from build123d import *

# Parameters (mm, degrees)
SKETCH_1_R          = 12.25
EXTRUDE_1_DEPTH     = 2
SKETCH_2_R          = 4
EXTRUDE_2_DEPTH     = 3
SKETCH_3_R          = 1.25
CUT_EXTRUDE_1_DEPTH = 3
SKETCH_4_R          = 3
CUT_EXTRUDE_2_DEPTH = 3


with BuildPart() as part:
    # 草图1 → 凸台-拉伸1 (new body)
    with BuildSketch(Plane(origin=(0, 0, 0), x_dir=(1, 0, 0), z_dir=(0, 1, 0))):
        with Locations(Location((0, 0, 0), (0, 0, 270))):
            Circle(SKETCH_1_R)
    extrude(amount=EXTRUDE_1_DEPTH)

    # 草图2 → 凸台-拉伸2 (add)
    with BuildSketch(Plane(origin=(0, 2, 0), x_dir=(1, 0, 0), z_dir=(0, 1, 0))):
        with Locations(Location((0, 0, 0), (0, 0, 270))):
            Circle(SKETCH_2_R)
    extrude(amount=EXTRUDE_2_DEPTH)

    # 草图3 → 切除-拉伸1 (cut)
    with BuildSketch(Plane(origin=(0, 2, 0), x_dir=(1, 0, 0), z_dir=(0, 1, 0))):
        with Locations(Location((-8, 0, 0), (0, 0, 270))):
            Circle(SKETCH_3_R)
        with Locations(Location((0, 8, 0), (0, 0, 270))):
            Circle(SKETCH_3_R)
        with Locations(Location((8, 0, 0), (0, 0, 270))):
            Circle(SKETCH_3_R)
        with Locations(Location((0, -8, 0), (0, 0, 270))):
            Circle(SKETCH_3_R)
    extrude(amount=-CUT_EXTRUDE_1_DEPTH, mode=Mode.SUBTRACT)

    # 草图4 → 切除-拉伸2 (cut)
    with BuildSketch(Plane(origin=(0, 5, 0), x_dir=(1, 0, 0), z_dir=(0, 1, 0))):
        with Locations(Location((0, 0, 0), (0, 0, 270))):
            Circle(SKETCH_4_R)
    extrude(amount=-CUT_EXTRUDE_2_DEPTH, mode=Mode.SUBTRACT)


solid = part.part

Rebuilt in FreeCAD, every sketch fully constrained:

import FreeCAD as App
import Part
import Sketcher
from FreeCAD import Vector
Q = App.Units.Quantity

doc = App.newDocument("Part")
body = doc.addObject("PartDesign::Body", "Body")

# Sketch on XZ plane
sketch1 = body.newObject("Sketcher::SketchObject", "Sketch")
sketch1.AttachmentSupport = (doc.getObject("XZ_Plane"), [""])
sketch1.MapMode = "FlatFace"
sketch1.addGeometry(Part.Circle(Vector(0, 0, 0), Vector(0, 0, 1), 12), False)
sketch1.addConstraint([
    Sketcher.Constraint("Coincident", 0, 3, -1, 1),
    Sketcher.Constraint("Diameter", 0, Q("24.5 mm")),
])
pad1 = body.newObject("PartDesign::Pad", "Pad")
pad1.Profile = sketch1
pad1.Length = 2
pad1.Reversed = True

# Sketch on XZ plane
sketch2 = body.newObject("Sketcher::SketchObject", "Sketch001")
sketch2.AttachmentSupport = (doc.getObject("XZ_Plane"), [""])
sketch2.MapMode = "FlatFace"
sketch2.AttachmentOffset = App.Placement(Vector(0, 0, -2), App.Rotation())
sketch2.addGeometry(Part.Circle(Vector(0, 0, 0), Vector(0, 0, 1), 4), False)
sketch2.addConstraint([
    Sketcher.Constraint("Coincident", 0, 3, -1, 1),
    Sketcher.Constraint("Diameter", 0, Q("8 mm")),
])
pad2 = body.newObject("PartDesign::Pad", "Pad001")
pad2.Profile = sketch2
pad2.Length = 3
pad2.Reversed = True

# Sketch on XZ plane
sketch3 = body.newObject("Sketcher::SketchObject", "Sketch002")
sketch3.AttachmentSupport = (doc.getObject("XZ_Plane"), [""])
sketch3.MapMode = "FlatFace"
sketch3.AttachmentOffset = App.Placement(Vector(0, 0, -2), App.Rotation())
sketch3.addGeometry([
    Part.Circle(Vector(-8, 0, 0), Vector(0, 0, 1), 1.2),
    Part.Circle(Vector(0, -8, 0), Vector(0, 0, 1), 1.2),
    Part.Circle(Vector(8, 0, 0), Vector(0, 0, 1), 1.2),
    Part.Circle(Vector(0, 8, 0), Vector(0, 0, 1), 1.2),
], False)
sketch3.addConstraint([
    Sketcher.Constraint("Equal", 0, 1),
    Sketcher.Constraint("Equal", 1, 2),
    Sketcher.Constraint("Equal", 2, 3),
    Sketcher.Constraint("Symmetric", 0, 3, 2, 3, -1, 1),
    Sketcher.Constraint("Symmetric", 1, 3, 3, 3, -1, 1),
    Sketcher.Constraint("PointOnObject", 0, 3, -1),
    Sketcher.Constraint("PointOnObject", 1, 3, -2),
    Sketcher.Constraint("Diameter", 0, Q("2.5 mm")),
    Sketcher.Constraint("DistanceX", 0, 3, -1, 1, Q("8 mm")),
    Sketcher.Constraint("DistanceY", 1, 3, -1, 1, Q("8 mm")),
])
pocket1 = body.newObject("PartDesign::Pocket", "Pocket")
pocket1.Profile = sketch3
pocket1.Length = 3
pocket1.Reversed = True

# Sketch on XZ plane
sketch4 = body.newObject("Sketcher::SketchObject", "Sketch003")
sketch4.AttachmentSupport = (doc.getObject("XZ_Plane"), [""])
sketch4.MapMode = "FlatFace"
sketch4.AttachmentOffset = App.Placement(Vector(0, 0, -5), App.Rotation())
sketch4.addGeometry(Part.Circle(Vector(0, 0, 0), Vector(0, 0, 1), 3), False)
sketch4.addConstraint([
    Sketcher.Constraint("Coincident", 0, 3, -1, 1),
    Sketcher.Constraint("Diameter", 0, Q("6 mm")),
])
pocket2 = body.newObject("PartDesign::Pocket", "Pocket001")
pocket2.Profile = sketch4
pocket2.Length = 3
pocket2.Reversed = True

doc.recompute()
